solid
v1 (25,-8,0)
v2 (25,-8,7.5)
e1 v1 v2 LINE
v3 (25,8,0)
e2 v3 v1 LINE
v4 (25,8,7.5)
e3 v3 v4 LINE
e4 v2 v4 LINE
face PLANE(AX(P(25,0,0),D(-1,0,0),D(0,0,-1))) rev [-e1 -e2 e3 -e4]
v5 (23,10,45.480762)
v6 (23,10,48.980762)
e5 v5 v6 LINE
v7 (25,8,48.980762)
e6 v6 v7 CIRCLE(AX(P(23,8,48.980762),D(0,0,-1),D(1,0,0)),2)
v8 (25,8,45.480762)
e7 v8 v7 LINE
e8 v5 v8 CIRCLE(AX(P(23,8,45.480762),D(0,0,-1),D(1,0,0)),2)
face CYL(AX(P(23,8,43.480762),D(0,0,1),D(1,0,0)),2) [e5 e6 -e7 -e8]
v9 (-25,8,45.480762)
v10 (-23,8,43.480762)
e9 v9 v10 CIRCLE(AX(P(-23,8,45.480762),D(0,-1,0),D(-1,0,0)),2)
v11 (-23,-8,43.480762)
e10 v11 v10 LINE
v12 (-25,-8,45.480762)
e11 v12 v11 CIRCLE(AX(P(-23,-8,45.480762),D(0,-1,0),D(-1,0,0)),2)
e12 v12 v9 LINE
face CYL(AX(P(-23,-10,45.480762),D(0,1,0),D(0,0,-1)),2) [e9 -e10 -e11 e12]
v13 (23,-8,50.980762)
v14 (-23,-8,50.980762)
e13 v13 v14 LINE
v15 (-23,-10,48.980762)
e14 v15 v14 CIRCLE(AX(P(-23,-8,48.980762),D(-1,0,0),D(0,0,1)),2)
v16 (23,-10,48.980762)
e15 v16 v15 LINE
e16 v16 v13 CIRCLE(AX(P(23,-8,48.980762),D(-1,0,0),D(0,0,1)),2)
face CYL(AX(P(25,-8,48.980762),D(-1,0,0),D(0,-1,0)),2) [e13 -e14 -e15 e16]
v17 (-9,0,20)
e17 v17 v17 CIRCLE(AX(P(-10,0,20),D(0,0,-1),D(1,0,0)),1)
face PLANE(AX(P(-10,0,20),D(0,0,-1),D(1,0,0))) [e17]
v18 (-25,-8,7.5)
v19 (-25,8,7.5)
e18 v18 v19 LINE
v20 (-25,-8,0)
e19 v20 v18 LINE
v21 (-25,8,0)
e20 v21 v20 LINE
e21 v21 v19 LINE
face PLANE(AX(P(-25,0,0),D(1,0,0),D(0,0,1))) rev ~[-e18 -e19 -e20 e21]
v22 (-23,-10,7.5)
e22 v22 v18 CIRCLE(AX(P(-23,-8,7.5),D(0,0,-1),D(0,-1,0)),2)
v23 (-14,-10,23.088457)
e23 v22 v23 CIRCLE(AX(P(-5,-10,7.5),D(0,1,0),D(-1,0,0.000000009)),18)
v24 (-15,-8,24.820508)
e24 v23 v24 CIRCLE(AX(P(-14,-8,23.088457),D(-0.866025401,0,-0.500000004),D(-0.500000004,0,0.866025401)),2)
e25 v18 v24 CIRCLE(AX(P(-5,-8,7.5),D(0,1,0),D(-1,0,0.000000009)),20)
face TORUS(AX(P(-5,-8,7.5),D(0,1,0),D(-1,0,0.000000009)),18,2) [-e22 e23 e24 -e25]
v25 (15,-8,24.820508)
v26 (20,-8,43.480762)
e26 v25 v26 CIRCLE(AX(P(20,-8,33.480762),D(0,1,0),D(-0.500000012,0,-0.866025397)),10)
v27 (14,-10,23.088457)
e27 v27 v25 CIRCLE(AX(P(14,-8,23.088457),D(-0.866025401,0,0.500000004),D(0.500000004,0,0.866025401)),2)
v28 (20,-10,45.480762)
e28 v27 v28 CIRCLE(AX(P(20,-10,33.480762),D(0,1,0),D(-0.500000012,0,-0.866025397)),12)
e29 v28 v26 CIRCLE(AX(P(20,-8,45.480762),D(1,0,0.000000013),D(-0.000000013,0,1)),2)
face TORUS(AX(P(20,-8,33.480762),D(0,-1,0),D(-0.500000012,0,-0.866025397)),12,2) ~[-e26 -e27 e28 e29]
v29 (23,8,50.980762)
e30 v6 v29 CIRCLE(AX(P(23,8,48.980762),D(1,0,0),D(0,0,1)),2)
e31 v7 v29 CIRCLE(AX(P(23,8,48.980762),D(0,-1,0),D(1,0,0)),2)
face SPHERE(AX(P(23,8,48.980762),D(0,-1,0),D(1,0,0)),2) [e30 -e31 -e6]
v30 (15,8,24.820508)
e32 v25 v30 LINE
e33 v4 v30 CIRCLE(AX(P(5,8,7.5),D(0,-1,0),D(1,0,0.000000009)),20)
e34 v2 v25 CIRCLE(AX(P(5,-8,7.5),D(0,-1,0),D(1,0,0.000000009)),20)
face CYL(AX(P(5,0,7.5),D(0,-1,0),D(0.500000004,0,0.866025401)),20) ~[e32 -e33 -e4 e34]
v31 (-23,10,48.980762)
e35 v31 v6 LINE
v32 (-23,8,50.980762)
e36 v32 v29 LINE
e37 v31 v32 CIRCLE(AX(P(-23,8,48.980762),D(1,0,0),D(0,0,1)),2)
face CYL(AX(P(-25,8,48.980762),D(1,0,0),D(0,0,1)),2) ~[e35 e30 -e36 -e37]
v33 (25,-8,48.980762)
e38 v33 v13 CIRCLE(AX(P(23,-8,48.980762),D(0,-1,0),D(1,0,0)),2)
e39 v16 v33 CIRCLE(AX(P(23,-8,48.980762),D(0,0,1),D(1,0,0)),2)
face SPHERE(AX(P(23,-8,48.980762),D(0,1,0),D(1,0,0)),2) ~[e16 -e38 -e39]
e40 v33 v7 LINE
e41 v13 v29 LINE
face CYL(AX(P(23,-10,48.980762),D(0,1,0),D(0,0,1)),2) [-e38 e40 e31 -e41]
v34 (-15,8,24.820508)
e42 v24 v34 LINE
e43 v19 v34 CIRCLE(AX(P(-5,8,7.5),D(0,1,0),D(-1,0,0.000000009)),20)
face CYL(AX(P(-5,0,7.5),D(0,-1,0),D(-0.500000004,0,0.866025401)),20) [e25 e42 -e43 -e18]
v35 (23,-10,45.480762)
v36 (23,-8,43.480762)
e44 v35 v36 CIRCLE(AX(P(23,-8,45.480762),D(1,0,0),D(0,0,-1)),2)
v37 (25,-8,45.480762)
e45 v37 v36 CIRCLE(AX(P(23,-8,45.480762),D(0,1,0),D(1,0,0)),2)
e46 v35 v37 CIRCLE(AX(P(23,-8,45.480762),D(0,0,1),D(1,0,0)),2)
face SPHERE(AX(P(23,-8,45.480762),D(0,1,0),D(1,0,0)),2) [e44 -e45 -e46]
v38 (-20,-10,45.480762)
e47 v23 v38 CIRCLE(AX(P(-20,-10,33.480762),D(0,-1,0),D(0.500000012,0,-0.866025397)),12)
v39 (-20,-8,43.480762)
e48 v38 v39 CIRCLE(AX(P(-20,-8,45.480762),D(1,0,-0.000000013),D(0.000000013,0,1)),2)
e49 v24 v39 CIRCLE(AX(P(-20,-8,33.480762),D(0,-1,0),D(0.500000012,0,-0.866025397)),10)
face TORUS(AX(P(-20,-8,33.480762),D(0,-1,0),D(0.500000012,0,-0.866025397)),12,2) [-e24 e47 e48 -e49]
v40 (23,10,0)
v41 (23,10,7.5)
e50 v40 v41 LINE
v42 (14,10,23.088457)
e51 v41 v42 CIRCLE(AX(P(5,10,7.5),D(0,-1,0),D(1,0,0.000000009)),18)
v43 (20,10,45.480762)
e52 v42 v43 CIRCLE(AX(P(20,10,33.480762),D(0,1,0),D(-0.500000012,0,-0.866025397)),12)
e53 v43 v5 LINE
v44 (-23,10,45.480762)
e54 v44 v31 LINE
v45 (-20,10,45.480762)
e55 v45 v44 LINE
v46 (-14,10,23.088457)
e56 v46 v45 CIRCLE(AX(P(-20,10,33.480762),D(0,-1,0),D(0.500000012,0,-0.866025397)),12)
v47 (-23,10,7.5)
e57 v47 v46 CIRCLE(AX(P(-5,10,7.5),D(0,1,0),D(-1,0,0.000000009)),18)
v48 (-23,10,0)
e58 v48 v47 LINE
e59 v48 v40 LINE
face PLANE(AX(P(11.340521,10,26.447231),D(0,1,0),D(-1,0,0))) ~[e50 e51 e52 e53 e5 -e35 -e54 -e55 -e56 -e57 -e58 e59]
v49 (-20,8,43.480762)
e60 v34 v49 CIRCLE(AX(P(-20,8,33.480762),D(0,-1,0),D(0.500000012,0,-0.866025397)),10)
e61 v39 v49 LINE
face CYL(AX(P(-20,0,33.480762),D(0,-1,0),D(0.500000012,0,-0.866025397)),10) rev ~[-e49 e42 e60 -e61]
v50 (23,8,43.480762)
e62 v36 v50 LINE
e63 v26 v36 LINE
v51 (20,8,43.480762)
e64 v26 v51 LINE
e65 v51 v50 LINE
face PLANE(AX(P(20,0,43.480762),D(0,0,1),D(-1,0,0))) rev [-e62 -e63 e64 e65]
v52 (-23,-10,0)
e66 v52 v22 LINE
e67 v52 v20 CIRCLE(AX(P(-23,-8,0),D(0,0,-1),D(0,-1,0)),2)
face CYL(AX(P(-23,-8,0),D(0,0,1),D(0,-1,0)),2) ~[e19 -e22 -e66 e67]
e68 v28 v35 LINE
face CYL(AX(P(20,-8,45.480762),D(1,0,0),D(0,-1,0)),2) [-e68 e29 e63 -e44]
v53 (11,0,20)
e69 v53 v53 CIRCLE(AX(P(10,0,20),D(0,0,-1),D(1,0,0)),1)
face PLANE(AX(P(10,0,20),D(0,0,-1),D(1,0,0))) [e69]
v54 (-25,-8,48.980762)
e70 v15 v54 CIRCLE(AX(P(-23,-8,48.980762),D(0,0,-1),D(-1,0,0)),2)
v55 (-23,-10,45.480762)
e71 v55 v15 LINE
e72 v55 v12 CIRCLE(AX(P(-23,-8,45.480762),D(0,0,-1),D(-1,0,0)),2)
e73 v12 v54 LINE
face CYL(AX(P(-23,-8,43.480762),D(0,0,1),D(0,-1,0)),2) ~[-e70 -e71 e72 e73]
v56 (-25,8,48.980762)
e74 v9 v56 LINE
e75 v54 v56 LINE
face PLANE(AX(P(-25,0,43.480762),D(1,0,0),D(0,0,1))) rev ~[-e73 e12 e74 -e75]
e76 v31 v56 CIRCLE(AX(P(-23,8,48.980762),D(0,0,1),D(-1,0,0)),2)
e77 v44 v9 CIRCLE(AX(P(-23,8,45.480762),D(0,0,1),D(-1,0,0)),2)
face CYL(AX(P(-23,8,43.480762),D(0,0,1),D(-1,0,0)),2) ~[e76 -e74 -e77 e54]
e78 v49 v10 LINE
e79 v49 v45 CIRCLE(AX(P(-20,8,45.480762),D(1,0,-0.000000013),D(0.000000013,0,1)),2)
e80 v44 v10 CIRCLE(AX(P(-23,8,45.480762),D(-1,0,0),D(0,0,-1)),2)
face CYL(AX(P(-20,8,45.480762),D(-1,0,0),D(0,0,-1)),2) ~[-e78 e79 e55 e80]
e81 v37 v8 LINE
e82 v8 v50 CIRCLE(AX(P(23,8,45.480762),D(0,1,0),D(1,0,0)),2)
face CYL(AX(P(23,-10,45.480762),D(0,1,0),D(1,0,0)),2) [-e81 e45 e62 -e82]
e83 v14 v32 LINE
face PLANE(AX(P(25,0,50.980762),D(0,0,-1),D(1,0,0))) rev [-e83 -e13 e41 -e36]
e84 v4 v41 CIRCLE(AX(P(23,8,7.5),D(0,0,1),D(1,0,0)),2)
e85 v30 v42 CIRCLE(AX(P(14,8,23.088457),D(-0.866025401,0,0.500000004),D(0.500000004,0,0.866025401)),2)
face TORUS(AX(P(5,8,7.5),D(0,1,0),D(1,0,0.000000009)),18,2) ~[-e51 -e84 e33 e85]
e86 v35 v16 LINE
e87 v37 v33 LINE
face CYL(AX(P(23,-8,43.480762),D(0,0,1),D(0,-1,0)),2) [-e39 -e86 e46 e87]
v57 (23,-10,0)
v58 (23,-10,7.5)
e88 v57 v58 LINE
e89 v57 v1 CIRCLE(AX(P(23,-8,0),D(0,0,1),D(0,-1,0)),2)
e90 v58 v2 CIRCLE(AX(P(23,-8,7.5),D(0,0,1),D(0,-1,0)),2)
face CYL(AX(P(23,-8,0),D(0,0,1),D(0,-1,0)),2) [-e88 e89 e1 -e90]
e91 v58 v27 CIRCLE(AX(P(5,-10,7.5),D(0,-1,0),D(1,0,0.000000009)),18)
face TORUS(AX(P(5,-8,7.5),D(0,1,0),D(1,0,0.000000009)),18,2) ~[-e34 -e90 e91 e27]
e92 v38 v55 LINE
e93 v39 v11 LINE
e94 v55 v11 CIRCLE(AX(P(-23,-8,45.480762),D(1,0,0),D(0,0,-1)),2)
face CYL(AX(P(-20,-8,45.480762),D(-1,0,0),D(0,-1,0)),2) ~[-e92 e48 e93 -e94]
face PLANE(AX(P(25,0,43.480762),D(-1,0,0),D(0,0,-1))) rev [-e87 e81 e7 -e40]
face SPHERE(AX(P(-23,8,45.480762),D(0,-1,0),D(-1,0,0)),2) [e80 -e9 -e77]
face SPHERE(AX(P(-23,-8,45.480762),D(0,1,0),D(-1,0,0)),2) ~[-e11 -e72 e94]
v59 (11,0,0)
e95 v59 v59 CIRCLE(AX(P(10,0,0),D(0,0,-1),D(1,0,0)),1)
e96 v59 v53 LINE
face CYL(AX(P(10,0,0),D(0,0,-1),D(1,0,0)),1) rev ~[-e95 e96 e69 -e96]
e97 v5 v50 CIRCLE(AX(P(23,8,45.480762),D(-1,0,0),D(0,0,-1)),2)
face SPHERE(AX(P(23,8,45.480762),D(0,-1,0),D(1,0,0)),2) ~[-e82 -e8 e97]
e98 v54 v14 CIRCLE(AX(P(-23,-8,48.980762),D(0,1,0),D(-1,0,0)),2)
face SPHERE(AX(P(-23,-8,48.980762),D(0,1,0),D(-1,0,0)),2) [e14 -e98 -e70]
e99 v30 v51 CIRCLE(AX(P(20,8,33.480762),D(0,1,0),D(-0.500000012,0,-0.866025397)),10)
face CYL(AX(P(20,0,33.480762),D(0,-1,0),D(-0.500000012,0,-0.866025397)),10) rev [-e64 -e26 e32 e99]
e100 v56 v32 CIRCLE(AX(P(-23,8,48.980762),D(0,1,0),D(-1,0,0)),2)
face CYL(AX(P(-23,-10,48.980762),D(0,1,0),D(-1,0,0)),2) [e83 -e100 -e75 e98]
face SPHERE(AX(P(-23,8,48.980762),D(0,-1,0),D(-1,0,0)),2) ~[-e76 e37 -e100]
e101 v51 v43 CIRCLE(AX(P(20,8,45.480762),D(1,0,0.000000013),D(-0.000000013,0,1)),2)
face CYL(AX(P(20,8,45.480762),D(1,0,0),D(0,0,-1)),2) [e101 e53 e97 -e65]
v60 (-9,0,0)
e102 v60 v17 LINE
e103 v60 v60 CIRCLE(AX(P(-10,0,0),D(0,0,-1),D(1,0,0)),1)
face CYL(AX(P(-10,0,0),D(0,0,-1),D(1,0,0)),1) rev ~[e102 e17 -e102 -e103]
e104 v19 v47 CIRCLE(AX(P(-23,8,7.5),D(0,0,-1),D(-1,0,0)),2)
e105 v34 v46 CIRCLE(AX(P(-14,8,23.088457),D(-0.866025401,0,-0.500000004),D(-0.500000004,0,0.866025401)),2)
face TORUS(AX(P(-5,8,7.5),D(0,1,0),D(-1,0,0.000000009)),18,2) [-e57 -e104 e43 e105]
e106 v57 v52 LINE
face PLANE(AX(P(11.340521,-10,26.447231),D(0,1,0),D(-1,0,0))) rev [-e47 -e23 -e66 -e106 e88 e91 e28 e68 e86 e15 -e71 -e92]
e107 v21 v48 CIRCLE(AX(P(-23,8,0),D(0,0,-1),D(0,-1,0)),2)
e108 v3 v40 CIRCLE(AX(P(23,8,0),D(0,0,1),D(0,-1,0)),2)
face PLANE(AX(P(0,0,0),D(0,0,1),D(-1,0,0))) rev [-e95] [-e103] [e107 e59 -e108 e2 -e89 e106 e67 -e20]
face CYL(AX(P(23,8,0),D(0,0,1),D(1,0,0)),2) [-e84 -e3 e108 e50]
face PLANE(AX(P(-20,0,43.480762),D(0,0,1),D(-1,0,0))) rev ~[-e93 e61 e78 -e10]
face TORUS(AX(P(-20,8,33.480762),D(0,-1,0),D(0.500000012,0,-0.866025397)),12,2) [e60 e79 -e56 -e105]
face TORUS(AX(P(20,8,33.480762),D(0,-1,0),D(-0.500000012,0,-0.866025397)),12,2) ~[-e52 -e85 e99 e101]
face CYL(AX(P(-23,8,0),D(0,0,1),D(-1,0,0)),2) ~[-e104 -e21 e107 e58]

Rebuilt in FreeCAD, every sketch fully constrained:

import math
import FreeCAD as App
import Part
import Sketcher
Q = App.Units.Quantity


def edges_at(feature, points):
    """Names of the edges that pass closest to the given points."""
    edges = feature.Shape.Edges
    near = lambda p: min(range(len(edges)), key=lambda i: edges[i].distToShape(Part.Vertex(*p))[0])
    return sorted({f"Edge{near(p) + 1}" for p in points})

doc = App.newDocument("Part")
body = doc.addObject("PartDesign::Body", "Body")

sketch1 = doc.addObject("Sketcher::SketchObject", "Sketch")
body.addObject(sketch1)
sketch1.AttachmentSupport = (doc.XZ_Plane, [""])
sketch1.MapMode = "FlatFace"
sketch1.addGeometry(Part.LineSegment(App.Vector(-25, 7.5, 0), App.Vector(-25, 0, 0)), False)
sketch1.addGeometry(Part.LineSegment(App.Vector(-25, 0, 0), App.Vector(0, 0, 0)), False)
sketch1.addGeometry(Part.LineSegment(App.Vector(0, 0, 0), App.Vector(0, 50.980762, 0)), False)
sketch1.addGeometry(Part.LineSegment(App.Vector(0, 50.980762, 0), App.Vector(-25, 50.980762, 0)), False)
sketch1.addGeometry(Part.LineSegment(App.Vector(-25, 50.980762, 0), App.Vector(-25, 43.480762, 0)), False)
sketch1.addGeometry(Part.LineSegment(App.Vector(-25, 43.480762, 0), App.Vector(-20, 43.480762, 0)), False)
sketch1.addGeometry(Part.ArcOfCircle(Part.Circle(App.Vector(-20, 33.480762, 0), App.Vector(0, 0, 1), 10), math.radians(-59.999999), math.radians(89.999999)), False)
sketch1.addGeometry(Part.ArcOfCircle(Part.Circle(App.Vector(-5, 7.5, 0), App.Vector(0, 0, 1), 20), math.radians(120), math.radians(179.999999)), False)
sketch1.addConstraint(Sketcher.Constraint("Coincident", 0, 2, 1, 1))
sketch1.addConstraint(Sketcher.Constraint("Coincident", 1, 2, 2, 1))
sketch1.addConstraint(Sketcher.Constraint("Coincident", 2, 2, 3, 1))
sketch1.addConstraint(Sketcher.Constraint("Coincident", 3, 2, 4, 1))
sketch1.addConstraint(Sketcher.Constraint("Coincident", 4, 2, 5, 1))
sketch1.addConstraint(Sketcher.Constraint("Tangent", 5, 2, 6, 2))
sketch1.addConstraint(Sketcher.Constraint("Tangent", 6, 1, 7, 1))
sketch1.addConstraint(Sketcher.Constraint("Tangent", 7, 2, 0, 1))
sketch1.addConstraint(Sketcher.Constraint("Vertical", 0))
sketch1.addConstraint(Sketcher.Constraint("Horizontal", 1))
sketch1.addConstraint(Sketcher.Constraint("Vertical", 2))
sketch1.addConstraint(Sketcher.Constraint("Horizontal", 3))
sketch1.addConstraint(Sketcher.Constraint("Vertical", 4))
sketch1.addConstraint(Sketcher.Constraint("Horizontal", 5))
sketch1.addConstraint(Sketcher.Constraint("Coincident", 1, 2, -1, 1))
sketch1.addConstraint(Sketcher.Constraint("Vertical", 0, 2, 3, 2))
sketch1.addConstraint(Sketcher.Constraint("Equal", 0, 4))
sketch1.addConstraint(Sketcher.Constraint("Radius", 6, Q("10 mm")))
sketch1.addConstraint(Sketcher.Constraint("Radius", 7, Q("20 mm")))
sketch1.addConstraint(Sketcher.Constraint("DistanceX", 1, 1, 1, 2, Q("25 mm")))
sketch1.addConstraint(Sketcher.Constraint("DistanceX", 5, 1, 5, 2, Q("5 mm")))
sketch1.addConstraint(Sketcher.Constraint("DistanceY", 0, 2, 0, 1, Q("7.5 mm")))
pad1 = doc.addObject("PartDesign::Pad", "Pad")
body.addObject(pad1)
pad1.Profile = sketch1
pad1.Length = 20
pad1.Midplane = True
doc.recompute()

mirrored = doc.addObject("PartDesign::Mirrored", "Mirrored")
body.addObject(mirrored)
mirrored.Originals = [pad1]
mirrored.MirrorPlane = (doc.YZ_Plane, [""])
body.Tip = mirrored
doc.recompute()

fillet = doc.addObject("PartDesign::Fillet", "Fillet")
body.addObject(fillet)
fillet.Base = (mirrored, edges_at(mirrored, [
    (25, 0, 43.481),
    (25, 0, 50.981),
    (25, 10, 47.231),
    (25, -10, 47.231),
    (-25, 0, 43.481),
    (-25, 0, 50.981),
    (-25, 10, 47.231),
    (-25, -10, 47.231),
    (0, -10, 50.981),
    (0, 10, 50.981),
    (22.5, -10, 43.481),
    (10.341, -10, 36.069),
    (22.321, -10, 17.5),
    (25, -10, 3.75),
    (25, 10, 3.75),
    (22.321, 10, 17.5),
    (10.341, 10, 36.069),
    (22.5, 10, 43.481),
    (-25, 10, 3.75),
    (-22.321, 10, 17.5),
    (-10.341, 10, 36.069),
    (-22.5, 10, 43.481),
    (-22.5, -10, 43.481),
    (-10.341, -10, 36.069),
    (-22.321, -10, 17.5),
    (-25, -10, 3.75),
]))
fillet.Radius = 2

sketch2 = doc.addObject("Sketcher::SketchObject", "Sketch001")
body.addObject(sketch2)
sketch2.AttachmentSupport = (doc.XY_Plane, [""])
sketch2.MapMode = "FlatFace"
sketch2.addGeometry(Part.Circle(App.Vector(-10, 0, 0), App.Vector(0, 0, 1), 1), False)
sketch2.addGeometry(Part.Circle(App.Vector(10, 0, 0), App.Vector(0, 0, 1), 1), False)
sketch2.addConstraint(Sketcher.Constraint("Equal", 0, 1))
sketch2.addConstraint(Sketcher.Constraint("Symmetric", 0, 3, 1, 3, -1, 1))
sketch2.addConstraint(Sketcher.Constraint("PointOnObject", 0, 3, -1))
sketch2.addConstraint(Sketcher.Constraint("Diameter", 0, Q("2 mm")))
sketch2.addConstraint(Sketcher.Constraint("DistanceX", 0, 3, -1, 1, Q("10 mm")))
pocket1 = doc.addObject("PartDesign::Pocket", "Pocket")
body.addObject(pocket1)
pocket1.Profile = sketch2
pocket1.Length = 20
pocket1.Reversed = True

doc.recompute()
